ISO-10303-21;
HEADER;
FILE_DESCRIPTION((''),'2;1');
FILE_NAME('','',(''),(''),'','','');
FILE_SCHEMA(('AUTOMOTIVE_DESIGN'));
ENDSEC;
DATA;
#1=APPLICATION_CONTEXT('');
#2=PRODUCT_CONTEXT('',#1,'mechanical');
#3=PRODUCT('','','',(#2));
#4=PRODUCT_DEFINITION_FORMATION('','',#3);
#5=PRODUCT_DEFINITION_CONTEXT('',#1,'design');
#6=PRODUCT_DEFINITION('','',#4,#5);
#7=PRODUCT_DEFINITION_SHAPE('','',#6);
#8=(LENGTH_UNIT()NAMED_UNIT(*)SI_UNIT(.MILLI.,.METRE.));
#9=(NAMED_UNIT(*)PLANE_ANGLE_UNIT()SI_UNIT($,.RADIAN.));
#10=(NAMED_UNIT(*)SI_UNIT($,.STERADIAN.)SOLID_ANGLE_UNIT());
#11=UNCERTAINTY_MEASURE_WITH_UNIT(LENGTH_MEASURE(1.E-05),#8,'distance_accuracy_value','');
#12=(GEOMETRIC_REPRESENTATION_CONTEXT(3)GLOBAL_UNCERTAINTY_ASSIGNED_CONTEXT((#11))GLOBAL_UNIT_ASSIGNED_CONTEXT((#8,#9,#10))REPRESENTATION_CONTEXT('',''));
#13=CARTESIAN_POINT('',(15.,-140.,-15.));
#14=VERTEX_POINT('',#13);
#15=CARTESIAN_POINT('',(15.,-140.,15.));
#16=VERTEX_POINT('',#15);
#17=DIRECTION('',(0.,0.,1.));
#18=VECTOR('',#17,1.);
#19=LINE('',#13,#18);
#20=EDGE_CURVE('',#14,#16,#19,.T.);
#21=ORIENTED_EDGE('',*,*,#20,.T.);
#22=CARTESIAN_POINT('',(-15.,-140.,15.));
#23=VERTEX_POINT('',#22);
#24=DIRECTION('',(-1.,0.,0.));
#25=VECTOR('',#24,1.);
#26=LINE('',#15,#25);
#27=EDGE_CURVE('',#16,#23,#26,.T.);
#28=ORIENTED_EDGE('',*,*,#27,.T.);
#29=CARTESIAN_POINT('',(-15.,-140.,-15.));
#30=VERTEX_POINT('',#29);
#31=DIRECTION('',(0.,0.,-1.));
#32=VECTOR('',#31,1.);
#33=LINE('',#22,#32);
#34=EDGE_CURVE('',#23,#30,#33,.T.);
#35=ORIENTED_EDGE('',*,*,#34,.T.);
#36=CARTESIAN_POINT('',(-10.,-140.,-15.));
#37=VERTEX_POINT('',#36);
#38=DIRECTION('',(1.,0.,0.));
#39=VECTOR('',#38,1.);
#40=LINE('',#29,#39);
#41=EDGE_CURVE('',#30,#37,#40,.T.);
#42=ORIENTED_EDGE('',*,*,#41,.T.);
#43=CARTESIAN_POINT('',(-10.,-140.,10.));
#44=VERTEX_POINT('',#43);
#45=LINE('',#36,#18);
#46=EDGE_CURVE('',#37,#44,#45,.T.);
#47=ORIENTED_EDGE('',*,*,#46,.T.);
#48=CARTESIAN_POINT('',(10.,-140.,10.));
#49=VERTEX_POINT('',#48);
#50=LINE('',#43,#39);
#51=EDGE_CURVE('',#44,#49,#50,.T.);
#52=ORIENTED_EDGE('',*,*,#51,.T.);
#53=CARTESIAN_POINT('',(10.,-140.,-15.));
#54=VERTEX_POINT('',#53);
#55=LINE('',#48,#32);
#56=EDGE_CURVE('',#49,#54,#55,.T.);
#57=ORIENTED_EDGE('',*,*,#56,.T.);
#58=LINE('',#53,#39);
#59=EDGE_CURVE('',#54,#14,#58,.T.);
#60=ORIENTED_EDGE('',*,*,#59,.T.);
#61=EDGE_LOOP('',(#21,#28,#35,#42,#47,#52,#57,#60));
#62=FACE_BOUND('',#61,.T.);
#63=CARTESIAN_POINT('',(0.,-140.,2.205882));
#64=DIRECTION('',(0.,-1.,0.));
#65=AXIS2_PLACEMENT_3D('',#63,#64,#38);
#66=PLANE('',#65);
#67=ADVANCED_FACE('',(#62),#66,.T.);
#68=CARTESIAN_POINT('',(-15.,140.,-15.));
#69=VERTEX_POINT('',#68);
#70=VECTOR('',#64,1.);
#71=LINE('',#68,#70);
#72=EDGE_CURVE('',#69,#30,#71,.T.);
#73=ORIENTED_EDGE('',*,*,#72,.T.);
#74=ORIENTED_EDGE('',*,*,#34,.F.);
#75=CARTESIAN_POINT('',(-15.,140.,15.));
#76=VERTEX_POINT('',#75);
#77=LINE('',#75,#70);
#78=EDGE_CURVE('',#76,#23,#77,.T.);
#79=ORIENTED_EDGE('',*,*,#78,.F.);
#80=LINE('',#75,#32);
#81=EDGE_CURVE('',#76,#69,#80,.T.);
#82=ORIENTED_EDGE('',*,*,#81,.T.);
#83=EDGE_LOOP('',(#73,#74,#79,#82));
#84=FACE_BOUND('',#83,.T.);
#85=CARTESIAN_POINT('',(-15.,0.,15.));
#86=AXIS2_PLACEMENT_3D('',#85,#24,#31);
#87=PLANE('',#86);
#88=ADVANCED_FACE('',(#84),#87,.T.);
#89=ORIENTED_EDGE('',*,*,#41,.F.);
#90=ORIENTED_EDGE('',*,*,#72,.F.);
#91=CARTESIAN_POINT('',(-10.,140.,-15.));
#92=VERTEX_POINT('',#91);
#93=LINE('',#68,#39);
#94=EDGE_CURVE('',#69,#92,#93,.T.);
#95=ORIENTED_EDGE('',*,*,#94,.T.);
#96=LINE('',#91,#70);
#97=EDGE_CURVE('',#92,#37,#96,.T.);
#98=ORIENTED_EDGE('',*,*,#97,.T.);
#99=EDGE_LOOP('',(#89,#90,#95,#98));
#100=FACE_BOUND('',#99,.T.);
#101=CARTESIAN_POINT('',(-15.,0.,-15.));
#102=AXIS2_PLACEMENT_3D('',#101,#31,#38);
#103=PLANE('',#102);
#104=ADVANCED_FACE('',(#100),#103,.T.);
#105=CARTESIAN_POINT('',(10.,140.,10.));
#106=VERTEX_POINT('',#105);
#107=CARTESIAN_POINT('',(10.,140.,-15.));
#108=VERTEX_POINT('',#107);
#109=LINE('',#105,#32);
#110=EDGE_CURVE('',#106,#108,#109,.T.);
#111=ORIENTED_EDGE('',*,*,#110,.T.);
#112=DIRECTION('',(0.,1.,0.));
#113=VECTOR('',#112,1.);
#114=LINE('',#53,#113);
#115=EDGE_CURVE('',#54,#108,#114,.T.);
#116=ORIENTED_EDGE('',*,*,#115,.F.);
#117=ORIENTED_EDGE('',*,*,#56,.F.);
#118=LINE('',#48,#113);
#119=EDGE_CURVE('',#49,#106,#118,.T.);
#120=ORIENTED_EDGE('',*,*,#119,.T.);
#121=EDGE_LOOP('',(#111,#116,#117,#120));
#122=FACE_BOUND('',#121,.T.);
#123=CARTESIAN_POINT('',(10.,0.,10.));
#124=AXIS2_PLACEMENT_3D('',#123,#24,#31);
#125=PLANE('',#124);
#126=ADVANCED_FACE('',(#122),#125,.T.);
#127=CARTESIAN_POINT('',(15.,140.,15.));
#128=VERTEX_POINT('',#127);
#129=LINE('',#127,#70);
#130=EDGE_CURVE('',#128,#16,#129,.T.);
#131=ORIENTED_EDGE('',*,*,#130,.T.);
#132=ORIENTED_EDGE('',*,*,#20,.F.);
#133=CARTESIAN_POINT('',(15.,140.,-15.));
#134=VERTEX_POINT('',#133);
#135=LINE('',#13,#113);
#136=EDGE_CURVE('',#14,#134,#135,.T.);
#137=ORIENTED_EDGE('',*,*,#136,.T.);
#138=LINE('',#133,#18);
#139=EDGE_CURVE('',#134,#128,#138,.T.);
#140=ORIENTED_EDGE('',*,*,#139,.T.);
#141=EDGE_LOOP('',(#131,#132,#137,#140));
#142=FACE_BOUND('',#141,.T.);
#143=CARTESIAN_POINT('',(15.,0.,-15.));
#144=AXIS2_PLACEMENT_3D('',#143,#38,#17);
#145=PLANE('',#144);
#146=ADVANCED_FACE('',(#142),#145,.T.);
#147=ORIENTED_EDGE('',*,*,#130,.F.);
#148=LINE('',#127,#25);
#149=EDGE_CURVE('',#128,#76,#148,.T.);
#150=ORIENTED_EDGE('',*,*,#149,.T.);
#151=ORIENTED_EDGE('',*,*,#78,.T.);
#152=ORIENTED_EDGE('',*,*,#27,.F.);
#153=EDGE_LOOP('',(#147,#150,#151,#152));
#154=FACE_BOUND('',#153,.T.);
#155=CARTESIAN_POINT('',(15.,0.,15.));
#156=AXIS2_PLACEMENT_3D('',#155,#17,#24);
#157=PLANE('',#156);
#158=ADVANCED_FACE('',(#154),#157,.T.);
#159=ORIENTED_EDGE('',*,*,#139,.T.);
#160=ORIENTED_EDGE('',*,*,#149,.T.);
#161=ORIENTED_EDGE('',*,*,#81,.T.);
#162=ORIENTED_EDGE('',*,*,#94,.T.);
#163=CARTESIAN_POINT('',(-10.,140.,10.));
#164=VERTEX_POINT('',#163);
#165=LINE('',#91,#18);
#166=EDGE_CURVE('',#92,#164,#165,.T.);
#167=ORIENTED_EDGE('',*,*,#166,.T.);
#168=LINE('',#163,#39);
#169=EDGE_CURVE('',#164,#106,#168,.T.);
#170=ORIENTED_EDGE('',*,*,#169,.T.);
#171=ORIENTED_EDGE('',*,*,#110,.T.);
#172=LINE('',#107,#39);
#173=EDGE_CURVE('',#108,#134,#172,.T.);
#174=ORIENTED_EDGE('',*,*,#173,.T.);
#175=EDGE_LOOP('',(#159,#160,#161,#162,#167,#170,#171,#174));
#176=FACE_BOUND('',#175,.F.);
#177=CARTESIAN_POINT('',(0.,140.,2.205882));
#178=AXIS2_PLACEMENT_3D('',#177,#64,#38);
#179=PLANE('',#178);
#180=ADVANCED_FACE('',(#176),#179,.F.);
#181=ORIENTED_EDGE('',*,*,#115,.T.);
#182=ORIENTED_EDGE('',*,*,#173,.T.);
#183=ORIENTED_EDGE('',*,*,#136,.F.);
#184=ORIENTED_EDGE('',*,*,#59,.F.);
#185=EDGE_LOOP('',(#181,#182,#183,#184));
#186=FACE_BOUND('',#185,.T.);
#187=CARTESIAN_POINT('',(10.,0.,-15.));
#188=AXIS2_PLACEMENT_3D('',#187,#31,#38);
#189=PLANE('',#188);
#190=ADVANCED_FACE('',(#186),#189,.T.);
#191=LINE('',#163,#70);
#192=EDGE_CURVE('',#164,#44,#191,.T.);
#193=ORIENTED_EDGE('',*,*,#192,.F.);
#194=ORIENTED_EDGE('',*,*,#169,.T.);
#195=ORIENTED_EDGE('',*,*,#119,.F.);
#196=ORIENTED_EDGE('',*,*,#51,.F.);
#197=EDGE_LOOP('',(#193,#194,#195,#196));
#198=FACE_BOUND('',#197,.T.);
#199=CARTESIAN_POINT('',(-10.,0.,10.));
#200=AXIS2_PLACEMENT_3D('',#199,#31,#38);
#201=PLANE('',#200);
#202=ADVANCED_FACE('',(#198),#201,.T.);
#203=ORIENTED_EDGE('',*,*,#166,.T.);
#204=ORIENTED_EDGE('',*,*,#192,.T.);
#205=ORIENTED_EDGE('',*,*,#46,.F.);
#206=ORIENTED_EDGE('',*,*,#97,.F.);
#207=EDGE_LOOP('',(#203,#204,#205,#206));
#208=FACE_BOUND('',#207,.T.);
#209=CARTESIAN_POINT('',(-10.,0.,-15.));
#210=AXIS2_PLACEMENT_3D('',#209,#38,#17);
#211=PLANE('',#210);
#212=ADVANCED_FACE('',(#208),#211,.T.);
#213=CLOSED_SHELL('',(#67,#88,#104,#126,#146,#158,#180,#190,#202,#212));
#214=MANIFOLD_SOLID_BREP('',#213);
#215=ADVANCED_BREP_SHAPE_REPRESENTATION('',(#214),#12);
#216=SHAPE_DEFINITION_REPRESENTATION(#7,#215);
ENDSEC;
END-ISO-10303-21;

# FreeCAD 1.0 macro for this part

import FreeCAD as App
import Part
import Sketcher
from FreeCAD import Vector

doc = App.newDocument("Part")
body = doc.addObject("PartDesign::Body", "Body")

# Sketch on XZ plane
sketch1 = body.newObject("Sketcher::SketchObject", "Sketch")
sketch1.AttachmentSupport = (doc.getObject("XZ_Plane"), [""])
sketch1.MapMode = "FlatFace"
sketch1.addGeometry([
    Part.LineSegment(Vector(15, -15, 0), Vector(15, 15, 0)),  # 0
    Part.LineSegment(Vector(15, 15, 0), Vector(-15, 15, 0)),  # 1
    Part.LineSegment(Vector(-15, 15, 0), Vector(-15, -15, 0)),  # 2
    Part.LineSegment(Vector(-15, -15, 0), Vector(-10, -15, 0)),  # 3
    Part.LineSegment(Vector(-10, -15, 0), Vector(-10, 10, 0)),  # 4
    Part.LineSegment(Vector(-10, 10, 0), Vector(10, 10, 0)),  # 5
    Part.LineSegment(Vector(10, 10, 0), Vector(10, -15, 0)),  # 6
    Part.LineSegment(Vector(10, -15, 0), Vector(15, -15, 0)),  # 7
], False)
sketch1.addConstraint([
    Sketcher.Constraint("Coincident", 0, 2, 1, 1),
    Sketcher.Constraint("Coincident", 1, 2, 2, 1),
    Sketcher.Constraint("Coincident", 2, 2, 3, 1),
    Sketcher.Constraint("Coincident", 3, 2, 4, 1),
    Sketcher.Constraint("Coincident", 4, 2, 5, 1),
    Sketcher.Constraint("Coincident", 5, 2, 6, 1),
    Sketcher.Constraint("Coincident", 6, 2, 7, 1),
    Sketcher.Constraint("Coincident", 7, 2, 0, 1),
    Sketcher.Constraint("Vertical", 0),
    Sketcher.Constraint("Horizontal", 1),
    Sketcher.Constraint("Vertical", 2),
    Sketcher.Constraint("Horizontal", 3),
    Sketcher.Constraint("Vertical", 4),
    Sketcher.Constraint("Horizontal", 5),
    Sketcher.Constraint("Vertical", 6),
    Sketcher.Constraint("Horizontal", 7),
    Sketcher.Constraint("Symmetric", 0, 2, 2, 2, -1, 1),
    Sketcher.Constraint("Symmetric", 3, 2, 6, 2, -2),
    Sketcher.Constraint("Equal", 1, 0),
    Sketcher.Constraint("DistanceX", 1, 2, 1, 1, 30.0),
    Sketcher.Constraint("DistanceX", 3, 1, 3, 2, 5.0),
    Sketcher.Constraint("DistanceY", 4, 1, 4, 2, 25.0),
])
pad1 = body.newObject("PartDesign::Pad", "Pad")
pad1.Profile = sketch1
pad1.Type = "TwoLengths"
pad1.Length = 140
pad1.Length2 = 140

doc.recompute()
